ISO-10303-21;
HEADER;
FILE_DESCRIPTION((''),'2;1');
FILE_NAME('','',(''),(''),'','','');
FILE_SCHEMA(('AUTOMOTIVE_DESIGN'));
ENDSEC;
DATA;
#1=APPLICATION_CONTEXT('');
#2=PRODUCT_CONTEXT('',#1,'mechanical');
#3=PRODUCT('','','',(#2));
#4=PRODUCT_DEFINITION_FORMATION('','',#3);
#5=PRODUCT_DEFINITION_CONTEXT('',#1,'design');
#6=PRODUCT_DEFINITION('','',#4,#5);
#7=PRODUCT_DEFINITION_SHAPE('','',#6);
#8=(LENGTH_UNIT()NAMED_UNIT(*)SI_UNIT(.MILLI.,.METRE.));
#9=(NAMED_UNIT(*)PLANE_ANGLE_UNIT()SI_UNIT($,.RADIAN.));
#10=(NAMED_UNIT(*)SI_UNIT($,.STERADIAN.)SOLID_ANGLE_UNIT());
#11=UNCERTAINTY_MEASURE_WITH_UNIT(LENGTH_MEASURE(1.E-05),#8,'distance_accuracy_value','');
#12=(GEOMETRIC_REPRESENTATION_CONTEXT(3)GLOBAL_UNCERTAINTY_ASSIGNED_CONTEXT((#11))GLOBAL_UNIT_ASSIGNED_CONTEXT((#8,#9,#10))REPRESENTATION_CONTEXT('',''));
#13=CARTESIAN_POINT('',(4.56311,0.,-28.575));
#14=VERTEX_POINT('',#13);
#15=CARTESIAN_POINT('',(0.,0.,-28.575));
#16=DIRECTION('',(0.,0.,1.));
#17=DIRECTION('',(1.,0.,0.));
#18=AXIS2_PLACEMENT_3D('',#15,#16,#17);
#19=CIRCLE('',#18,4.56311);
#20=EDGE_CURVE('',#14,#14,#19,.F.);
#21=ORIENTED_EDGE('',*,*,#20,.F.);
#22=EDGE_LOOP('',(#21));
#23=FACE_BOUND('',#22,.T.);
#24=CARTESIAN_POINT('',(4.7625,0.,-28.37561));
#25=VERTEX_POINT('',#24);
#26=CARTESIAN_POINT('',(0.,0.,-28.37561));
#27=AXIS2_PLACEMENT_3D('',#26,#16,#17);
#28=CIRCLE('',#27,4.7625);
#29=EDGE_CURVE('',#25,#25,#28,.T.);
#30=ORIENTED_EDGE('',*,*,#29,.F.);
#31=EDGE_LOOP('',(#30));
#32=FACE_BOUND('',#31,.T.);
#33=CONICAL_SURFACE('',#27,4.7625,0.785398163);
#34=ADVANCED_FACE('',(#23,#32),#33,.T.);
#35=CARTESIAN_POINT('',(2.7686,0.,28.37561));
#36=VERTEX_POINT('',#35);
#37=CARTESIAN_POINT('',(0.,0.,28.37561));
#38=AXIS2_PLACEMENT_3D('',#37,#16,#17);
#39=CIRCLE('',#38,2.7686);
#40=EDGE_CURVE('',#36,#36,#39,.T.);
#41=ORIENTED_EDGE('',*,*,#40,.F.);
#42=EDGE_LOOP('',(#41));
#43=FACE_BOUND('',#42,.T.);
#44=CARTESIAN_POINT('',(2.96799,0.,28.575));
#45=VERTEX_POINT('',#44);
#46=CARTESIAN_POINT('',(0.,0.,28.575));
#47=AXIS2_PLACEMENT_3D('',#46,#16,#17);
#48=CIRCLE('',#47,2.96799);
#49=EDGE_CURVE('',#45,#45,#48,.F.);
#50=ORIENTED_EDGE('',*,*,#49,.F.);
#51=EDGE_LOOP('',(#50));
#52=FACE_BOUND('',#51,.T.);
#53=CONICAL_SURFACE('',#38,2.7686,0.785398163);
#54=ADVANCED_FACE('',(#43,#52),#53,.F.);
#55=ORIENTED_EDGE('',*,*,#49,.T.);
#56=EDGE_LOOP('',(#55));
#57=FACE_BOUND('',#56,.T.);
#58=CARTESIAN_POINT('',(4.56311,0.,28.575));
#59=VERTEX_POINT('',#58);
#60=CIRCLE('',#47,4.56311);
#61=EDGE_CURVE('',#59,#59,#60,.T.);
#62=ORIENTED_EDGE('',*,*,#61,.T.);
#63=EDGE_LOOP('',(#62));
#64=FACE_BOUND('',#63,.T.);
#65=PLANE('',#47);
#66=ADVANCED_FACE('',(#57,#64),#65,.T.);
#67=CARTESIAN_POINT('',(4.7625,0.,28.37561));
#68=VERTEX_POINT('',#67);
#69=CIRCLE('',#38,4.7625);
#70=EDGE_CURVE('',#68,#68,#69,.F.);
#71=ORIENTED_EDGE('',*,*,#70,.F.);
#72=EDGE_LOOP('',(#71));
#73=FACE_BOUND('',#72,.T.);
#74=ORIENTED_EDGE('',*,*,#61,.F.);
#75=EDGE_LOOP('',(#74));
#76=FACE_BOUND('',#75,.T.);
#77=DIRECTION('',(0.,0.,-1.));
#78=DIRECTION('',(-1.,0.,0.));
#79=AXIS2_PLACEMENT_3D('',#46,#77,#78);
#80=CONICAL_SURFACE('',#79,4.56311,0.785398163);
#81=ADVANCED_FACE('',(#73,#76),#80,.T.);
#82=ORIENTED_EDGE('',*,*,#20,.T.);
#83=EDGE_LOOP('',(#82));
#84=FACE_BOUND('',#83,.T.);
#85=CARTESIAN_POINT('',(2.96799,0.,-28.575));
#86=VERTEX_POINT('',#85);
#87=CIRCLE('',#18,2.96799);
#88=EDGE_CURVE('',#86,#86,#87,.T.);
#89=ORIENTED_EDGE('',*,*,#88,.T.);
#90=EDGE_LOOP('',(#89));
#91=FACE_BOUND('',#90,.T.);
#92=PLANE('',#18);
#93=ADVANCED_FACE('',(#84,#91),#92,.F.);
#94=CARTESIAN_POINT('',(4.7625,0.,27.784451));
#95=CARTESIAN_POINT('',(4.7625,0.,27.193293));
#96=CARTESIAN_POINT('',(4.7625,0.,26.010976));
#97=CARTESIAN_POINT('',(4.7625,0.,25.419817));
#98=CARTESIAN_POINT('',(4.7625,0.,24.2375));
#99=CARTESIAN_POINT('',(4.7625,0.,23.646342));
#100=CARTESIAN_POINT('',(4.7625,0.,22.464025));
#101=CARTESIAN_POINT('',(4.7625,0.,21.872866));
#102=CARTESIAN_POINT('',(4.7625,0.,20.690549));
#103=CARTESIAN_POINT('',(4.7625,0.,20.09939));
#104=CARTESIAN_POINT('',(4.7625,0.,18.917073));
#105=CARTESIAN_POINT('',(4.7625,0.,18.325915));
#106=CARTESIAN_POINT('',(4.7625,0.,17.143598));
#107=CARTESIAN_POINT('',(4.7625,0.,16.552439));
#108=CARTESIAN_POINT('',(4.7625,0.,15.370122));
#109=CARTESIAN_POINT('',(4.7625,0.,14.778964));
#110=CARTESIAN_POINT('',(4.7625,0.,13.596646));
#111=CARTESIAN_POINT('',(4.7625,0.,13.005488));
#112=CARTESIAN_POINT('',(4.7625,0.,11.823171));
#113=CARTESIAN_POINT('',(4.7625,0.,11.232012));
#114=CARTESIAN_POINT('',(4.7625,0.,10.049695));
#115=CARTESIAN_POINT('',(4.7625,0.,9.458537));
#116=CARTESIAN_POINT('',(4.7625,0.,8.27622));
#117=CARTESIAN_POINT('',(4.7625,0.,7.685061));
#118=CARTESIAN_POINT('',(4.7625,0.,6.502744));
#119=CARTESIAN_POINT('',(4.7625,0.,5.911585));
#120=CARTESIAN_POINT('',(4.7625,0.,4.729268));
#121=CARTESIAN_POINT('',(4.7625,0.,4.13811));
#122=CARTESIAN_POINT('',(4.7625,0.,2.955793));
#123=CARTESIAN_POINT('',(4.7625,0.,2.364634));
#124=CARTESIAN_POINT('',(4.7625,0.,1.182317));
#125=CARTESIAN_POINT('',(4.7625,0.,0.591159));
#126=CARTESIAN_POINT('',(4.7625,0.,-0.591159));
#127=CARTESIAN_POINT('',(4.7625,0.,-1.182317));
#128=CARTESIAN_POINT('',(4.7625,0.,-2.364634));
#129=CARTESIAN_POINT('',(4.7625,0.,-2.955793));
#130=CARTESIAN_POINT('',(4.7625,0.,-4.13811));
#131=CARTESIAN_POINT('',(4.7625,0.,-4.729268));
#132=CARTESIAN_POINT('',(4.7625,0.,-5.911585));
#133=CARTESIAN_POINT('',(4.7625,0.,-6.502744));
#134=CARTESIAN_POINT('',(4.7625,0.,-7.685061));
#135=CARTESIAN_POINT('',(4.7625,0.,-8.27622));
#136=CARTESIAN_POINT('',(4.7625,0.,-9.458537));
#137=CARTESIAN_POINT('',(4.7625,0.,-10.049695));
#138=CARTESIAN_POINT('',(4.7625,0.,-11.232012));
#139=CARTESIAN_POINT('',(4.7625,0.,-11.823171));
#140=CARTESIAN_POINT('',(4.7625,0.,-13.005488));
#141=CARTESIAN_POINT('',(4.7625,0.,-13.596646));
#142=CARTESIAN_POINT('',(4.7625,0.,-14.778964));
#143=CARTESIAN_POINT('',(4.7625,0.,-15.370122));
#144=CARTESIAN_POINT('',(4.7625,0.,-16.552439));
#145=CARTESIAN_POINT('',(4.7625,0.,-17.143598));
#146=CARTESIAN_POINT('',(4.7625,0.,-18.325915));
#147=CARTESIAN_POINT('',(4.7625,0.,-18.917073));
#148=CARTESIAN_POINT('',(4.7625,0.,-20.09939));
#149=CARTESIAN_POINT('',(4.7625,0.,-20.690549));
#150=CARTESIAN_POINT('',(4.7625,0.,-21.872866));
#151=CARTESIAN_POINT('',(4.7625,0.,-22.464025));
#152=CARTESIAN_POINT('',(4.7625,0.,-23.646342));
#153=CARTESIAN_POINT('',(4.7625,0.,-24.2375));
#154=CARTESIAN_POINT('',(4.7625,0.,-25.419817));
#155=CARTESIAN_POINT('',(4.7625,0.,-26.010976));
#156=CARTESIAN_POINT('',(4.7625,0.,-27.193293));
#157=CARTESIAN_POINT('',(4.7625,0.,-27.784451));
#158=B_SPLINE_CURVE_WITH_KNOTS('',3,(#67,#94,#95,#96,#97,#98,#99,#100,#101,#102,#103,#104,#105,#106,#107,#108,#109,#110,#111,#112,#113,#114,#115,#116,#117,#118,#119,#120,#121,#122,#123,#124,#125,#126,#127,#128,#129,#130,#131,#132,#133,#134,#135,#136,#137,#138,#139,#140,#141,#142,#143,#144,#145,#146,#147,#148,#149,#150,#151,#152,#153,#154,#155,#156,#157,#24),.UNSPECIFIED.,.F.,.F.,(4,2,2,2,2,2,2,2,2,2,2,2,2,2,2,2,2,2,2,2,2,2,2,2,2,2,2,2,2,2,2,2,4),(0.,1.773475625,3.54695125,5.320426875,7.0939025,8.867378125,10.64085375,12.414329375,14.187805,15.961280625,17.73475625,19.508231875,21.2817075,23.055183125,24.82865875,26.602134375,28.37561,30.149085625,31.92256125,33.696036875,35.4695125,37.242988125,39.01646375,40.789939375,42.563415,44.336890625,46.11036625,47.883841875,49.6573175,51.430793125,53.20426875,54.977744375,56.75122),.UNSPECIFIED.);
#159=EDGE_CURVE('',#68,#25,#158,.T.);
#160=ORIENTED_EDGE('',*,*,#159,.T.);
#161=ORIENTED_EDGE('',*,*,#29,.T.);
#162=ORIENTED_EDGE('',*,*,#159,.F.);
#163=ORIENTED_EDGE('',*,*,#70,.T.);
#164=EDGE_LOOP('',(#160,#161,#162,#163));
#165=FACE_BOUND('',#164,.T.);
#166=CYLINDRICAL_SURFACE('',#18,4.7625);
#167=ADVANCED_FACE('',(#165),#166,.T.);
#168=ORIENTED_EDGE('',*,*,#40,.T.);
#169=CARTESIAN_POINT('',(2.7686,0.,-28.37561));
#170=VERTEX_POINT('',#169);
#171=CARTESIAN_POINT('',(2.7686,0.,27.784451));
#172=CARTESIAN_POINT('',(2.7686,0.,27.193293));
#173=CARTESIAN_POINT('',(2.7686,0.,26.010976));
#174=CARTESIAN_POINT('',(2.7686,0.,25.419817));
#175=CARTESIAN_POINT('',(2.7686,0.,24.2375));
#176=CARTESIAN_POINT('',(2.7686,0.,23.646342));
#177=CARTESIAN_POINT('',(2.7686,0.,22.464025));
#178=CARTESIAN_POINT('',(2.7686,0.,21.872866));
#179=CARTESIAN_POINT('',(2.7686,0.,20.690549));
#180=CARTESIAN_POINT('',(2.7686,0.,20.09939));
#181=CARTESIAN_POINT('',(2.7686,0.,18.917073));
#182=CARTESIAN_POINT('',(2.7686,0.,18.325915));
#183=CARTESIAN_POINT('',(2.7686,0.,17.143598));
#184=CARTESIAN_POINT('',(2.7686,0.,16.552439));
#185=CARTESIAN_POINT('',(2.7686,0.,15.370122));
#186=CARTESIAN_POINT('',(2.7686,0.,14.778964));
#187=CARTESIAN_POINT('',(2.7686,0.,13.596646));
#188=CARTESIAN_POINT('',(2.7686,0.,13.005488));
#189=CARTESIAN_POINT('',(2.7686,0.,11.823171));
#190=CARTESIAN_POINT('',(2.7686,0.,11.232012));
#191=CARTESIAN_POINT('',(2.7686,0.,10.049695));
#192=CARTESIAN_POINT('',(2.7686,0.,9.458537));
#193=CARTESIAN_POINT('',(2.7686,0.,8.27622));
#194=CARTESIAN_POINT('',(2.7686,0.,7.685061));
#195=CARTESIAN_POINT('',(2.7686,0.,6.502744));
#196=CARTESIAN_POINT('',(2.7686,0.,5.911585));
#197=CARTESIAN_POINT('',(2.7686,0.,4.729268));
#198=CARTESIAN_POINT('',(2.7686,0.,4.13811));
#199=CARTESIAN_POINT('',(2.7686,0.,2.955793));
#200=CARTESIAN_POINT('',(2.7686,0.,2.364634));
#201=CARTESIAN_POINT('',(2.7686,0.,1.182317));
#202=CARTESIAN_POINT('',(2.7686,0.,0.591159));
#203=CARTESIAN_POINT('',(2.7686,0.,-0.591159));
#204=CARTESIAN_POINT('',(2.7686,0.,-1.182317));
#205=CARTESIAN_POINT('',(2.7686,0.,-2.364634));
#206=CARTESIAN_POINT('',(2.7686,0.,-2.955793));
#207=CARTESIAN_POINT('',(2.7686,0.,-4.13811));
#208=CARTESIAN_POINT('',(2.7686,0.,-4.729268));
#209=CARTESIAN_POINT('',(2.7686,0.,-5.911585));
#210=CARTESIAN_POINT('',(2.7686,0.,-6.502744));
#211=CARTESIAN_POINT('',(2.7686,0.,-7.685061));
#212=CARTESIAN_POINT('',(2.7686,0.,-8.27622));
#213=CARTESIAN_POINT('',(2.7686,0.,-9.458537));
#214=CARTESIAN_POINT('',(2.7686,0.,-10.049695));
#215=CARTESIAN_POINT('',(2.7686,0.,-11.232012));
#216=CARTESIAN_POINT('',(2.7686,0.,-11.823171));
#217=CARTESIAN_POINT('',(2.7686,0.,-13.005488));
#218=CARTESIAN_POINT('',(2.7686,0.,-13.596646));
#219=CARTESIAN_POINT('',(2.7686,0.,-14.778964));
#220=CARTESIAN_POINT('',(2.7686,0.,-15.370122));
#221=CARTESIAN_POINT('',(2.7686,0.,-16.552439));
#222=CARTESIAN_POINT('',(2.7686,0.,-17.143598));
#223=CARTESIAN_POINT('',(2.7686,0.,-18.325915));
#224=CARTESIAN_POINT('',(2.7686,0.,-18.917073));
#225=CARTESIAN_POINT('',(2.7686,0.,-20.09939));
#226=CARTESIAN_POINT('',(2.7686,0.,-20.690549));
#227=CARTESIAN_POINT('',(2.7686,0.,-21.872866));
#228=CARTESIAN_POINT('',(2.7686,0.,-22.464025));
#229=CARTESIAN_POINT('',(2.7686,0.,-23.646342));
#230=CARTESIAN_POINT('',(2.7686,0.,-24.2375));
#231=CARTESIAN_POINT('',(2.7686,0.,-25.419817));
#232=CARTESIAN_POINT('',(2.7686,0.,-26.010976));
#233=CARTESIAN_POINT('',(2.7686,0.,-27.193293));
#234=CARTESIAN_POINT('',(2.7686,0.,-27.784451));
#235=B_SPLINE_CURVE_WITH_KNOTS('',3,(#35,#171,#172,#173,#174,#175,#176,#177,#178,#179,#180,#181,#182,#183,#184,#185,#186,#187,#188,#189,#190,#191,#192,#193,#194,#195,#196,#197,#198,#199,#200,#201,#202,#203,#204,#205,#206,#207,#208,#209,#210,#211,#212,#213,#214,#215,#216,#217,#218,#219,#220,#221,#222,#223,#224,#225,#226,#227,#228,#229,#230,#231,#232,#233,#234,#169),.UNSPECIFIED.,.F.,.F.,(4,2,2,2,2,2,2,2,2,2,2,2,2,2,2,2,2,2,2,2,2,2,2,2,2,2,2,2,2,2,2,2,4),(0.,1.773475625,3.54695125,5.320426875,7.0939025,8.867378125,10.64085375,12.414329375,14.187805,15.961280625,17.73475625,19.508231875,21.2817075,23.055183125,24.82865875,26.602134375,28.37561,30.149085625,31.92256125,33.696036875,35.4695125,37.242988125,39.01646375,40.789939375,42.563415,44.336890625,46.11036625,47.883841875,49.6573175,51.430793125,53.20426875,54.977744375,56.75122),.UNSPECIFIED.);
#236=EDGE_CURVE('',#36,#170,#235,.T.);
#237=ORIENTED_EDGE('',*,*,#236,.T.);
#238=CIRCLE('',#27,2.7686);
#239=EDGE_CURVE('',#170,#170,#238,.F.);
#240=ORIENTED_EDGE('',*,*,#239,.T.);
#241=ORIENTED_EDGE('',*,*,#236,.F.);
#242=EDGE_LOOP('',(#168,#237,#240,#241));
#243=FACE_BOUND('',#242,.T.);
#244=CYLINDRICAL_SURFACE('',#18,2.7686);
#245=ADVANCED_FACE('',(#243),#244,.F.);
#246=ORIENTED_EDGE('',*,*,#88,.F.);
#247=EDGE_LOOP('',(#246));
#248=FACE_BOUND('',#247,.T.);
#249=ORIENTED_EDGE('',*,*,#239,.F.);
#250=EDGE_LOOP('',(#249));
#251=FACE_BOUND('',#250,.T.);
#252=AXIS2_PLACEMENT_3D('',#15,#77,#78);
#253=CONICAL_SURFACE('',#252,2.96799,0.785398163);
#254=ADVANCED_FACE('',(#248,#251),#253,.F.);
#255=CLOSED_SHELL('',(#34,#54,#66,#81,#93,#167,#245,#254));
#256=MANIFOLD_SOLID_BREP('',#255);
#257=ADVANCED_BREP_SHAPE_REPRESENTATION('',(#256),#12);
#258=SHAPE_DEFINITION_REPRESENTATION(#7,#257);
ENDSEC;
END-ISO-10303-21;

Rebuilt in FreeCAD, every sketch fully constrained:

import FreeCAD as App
import Part
import Sketcher

V = App.Vector
Q = App.Units.Quantity


def edges_at(feature, points):
    """Names of the edges that pass closest to the given points."""
    edges = feature.Shape.Edges
    near = lambda p: min(range(len(edges)), key=lambda i: edges[i].distToShape(Part.Vertex(*p))[0])
    return sorted({f"Edge{near(p) + 1}" for p in points})

doc = App.newDocument("Part")
params = doc.addObject("Spreadsheet::Sheet", "Params")
for row, (alias, value) in enumerate([
    ("sketch1_diameter", "0.375 in"),
    ("sketch1_diameter2", "0.218 in"),
    ("pad1_length", "1.125 in"),
    ("pad1_length2", "1.125 in"),
    ("chamfer_size", "0.19939 mm"),
], start=1):
    params.set(f"A{row}", alias)
    params.set(f"B{row}", "=" + value)
    params.setAlias(f"B{row}", alias)

body = doc.addObject("PartDesign::Body", "Body")

sketch1 = body.newObject("Sketcher::SketchObject", "Sketch")
sketch1.AttachmentSupport = (doc.getObject("XY_Plane"), [""])
sketch1.MapMode = "FlatFace"
sketch1.addGeometry(Part.Circle(V(0, 0, 0), V(0, 0, 1), 4.8), False)
sketch1.addGeometry(Part.Circle(V(0, 0, 0), V(0, 0, 1), 2.8), False)
sketch1.addConstraint(Sketcher.Constraint("Coincident", 0, 3, -1, 1))
sketch1.addConstraint(Sketcher.Constraint("Coincident", 1, 3, -1, 1))
sketch1.addConstraint(Sketcher.Constraint("Diameter", 0, Q("0.375 in")))
sketch1.addConstraint(Sketcher.Constraint("Diameter", 1, Q("0.218 in")))
sketch1.setExpression("Constraints[2]", "Params.sketch1_diameter")
sketch1.setExpression("Constraints[3]", "Params.sketch1_diameter2")
pad1 = body.newObject("PartDesign::Pad", "Pad")
pad1.Profile = sketch1
pad1.Type = "TwoLengths"
pad1.setExpression("Length", "Params.pad1_length")
pad1.setExpression("Length2", "Params.pad1_length2")
doc.recompute()

chamfer = body.newObject("PartDesign::Chamfer", "Chamfer")
chamfer.Base = (pad1, edges_at(pad1, [
    (-4.763, 0, -28.575),
    (-2.769, 0, -28.575),
    (-4.763, 0, 28.575),
    (-2.769, 0, 28.575),
]))
chamfer.setExpression("Size", "Params.chamfer_size")

doc.recompute()
